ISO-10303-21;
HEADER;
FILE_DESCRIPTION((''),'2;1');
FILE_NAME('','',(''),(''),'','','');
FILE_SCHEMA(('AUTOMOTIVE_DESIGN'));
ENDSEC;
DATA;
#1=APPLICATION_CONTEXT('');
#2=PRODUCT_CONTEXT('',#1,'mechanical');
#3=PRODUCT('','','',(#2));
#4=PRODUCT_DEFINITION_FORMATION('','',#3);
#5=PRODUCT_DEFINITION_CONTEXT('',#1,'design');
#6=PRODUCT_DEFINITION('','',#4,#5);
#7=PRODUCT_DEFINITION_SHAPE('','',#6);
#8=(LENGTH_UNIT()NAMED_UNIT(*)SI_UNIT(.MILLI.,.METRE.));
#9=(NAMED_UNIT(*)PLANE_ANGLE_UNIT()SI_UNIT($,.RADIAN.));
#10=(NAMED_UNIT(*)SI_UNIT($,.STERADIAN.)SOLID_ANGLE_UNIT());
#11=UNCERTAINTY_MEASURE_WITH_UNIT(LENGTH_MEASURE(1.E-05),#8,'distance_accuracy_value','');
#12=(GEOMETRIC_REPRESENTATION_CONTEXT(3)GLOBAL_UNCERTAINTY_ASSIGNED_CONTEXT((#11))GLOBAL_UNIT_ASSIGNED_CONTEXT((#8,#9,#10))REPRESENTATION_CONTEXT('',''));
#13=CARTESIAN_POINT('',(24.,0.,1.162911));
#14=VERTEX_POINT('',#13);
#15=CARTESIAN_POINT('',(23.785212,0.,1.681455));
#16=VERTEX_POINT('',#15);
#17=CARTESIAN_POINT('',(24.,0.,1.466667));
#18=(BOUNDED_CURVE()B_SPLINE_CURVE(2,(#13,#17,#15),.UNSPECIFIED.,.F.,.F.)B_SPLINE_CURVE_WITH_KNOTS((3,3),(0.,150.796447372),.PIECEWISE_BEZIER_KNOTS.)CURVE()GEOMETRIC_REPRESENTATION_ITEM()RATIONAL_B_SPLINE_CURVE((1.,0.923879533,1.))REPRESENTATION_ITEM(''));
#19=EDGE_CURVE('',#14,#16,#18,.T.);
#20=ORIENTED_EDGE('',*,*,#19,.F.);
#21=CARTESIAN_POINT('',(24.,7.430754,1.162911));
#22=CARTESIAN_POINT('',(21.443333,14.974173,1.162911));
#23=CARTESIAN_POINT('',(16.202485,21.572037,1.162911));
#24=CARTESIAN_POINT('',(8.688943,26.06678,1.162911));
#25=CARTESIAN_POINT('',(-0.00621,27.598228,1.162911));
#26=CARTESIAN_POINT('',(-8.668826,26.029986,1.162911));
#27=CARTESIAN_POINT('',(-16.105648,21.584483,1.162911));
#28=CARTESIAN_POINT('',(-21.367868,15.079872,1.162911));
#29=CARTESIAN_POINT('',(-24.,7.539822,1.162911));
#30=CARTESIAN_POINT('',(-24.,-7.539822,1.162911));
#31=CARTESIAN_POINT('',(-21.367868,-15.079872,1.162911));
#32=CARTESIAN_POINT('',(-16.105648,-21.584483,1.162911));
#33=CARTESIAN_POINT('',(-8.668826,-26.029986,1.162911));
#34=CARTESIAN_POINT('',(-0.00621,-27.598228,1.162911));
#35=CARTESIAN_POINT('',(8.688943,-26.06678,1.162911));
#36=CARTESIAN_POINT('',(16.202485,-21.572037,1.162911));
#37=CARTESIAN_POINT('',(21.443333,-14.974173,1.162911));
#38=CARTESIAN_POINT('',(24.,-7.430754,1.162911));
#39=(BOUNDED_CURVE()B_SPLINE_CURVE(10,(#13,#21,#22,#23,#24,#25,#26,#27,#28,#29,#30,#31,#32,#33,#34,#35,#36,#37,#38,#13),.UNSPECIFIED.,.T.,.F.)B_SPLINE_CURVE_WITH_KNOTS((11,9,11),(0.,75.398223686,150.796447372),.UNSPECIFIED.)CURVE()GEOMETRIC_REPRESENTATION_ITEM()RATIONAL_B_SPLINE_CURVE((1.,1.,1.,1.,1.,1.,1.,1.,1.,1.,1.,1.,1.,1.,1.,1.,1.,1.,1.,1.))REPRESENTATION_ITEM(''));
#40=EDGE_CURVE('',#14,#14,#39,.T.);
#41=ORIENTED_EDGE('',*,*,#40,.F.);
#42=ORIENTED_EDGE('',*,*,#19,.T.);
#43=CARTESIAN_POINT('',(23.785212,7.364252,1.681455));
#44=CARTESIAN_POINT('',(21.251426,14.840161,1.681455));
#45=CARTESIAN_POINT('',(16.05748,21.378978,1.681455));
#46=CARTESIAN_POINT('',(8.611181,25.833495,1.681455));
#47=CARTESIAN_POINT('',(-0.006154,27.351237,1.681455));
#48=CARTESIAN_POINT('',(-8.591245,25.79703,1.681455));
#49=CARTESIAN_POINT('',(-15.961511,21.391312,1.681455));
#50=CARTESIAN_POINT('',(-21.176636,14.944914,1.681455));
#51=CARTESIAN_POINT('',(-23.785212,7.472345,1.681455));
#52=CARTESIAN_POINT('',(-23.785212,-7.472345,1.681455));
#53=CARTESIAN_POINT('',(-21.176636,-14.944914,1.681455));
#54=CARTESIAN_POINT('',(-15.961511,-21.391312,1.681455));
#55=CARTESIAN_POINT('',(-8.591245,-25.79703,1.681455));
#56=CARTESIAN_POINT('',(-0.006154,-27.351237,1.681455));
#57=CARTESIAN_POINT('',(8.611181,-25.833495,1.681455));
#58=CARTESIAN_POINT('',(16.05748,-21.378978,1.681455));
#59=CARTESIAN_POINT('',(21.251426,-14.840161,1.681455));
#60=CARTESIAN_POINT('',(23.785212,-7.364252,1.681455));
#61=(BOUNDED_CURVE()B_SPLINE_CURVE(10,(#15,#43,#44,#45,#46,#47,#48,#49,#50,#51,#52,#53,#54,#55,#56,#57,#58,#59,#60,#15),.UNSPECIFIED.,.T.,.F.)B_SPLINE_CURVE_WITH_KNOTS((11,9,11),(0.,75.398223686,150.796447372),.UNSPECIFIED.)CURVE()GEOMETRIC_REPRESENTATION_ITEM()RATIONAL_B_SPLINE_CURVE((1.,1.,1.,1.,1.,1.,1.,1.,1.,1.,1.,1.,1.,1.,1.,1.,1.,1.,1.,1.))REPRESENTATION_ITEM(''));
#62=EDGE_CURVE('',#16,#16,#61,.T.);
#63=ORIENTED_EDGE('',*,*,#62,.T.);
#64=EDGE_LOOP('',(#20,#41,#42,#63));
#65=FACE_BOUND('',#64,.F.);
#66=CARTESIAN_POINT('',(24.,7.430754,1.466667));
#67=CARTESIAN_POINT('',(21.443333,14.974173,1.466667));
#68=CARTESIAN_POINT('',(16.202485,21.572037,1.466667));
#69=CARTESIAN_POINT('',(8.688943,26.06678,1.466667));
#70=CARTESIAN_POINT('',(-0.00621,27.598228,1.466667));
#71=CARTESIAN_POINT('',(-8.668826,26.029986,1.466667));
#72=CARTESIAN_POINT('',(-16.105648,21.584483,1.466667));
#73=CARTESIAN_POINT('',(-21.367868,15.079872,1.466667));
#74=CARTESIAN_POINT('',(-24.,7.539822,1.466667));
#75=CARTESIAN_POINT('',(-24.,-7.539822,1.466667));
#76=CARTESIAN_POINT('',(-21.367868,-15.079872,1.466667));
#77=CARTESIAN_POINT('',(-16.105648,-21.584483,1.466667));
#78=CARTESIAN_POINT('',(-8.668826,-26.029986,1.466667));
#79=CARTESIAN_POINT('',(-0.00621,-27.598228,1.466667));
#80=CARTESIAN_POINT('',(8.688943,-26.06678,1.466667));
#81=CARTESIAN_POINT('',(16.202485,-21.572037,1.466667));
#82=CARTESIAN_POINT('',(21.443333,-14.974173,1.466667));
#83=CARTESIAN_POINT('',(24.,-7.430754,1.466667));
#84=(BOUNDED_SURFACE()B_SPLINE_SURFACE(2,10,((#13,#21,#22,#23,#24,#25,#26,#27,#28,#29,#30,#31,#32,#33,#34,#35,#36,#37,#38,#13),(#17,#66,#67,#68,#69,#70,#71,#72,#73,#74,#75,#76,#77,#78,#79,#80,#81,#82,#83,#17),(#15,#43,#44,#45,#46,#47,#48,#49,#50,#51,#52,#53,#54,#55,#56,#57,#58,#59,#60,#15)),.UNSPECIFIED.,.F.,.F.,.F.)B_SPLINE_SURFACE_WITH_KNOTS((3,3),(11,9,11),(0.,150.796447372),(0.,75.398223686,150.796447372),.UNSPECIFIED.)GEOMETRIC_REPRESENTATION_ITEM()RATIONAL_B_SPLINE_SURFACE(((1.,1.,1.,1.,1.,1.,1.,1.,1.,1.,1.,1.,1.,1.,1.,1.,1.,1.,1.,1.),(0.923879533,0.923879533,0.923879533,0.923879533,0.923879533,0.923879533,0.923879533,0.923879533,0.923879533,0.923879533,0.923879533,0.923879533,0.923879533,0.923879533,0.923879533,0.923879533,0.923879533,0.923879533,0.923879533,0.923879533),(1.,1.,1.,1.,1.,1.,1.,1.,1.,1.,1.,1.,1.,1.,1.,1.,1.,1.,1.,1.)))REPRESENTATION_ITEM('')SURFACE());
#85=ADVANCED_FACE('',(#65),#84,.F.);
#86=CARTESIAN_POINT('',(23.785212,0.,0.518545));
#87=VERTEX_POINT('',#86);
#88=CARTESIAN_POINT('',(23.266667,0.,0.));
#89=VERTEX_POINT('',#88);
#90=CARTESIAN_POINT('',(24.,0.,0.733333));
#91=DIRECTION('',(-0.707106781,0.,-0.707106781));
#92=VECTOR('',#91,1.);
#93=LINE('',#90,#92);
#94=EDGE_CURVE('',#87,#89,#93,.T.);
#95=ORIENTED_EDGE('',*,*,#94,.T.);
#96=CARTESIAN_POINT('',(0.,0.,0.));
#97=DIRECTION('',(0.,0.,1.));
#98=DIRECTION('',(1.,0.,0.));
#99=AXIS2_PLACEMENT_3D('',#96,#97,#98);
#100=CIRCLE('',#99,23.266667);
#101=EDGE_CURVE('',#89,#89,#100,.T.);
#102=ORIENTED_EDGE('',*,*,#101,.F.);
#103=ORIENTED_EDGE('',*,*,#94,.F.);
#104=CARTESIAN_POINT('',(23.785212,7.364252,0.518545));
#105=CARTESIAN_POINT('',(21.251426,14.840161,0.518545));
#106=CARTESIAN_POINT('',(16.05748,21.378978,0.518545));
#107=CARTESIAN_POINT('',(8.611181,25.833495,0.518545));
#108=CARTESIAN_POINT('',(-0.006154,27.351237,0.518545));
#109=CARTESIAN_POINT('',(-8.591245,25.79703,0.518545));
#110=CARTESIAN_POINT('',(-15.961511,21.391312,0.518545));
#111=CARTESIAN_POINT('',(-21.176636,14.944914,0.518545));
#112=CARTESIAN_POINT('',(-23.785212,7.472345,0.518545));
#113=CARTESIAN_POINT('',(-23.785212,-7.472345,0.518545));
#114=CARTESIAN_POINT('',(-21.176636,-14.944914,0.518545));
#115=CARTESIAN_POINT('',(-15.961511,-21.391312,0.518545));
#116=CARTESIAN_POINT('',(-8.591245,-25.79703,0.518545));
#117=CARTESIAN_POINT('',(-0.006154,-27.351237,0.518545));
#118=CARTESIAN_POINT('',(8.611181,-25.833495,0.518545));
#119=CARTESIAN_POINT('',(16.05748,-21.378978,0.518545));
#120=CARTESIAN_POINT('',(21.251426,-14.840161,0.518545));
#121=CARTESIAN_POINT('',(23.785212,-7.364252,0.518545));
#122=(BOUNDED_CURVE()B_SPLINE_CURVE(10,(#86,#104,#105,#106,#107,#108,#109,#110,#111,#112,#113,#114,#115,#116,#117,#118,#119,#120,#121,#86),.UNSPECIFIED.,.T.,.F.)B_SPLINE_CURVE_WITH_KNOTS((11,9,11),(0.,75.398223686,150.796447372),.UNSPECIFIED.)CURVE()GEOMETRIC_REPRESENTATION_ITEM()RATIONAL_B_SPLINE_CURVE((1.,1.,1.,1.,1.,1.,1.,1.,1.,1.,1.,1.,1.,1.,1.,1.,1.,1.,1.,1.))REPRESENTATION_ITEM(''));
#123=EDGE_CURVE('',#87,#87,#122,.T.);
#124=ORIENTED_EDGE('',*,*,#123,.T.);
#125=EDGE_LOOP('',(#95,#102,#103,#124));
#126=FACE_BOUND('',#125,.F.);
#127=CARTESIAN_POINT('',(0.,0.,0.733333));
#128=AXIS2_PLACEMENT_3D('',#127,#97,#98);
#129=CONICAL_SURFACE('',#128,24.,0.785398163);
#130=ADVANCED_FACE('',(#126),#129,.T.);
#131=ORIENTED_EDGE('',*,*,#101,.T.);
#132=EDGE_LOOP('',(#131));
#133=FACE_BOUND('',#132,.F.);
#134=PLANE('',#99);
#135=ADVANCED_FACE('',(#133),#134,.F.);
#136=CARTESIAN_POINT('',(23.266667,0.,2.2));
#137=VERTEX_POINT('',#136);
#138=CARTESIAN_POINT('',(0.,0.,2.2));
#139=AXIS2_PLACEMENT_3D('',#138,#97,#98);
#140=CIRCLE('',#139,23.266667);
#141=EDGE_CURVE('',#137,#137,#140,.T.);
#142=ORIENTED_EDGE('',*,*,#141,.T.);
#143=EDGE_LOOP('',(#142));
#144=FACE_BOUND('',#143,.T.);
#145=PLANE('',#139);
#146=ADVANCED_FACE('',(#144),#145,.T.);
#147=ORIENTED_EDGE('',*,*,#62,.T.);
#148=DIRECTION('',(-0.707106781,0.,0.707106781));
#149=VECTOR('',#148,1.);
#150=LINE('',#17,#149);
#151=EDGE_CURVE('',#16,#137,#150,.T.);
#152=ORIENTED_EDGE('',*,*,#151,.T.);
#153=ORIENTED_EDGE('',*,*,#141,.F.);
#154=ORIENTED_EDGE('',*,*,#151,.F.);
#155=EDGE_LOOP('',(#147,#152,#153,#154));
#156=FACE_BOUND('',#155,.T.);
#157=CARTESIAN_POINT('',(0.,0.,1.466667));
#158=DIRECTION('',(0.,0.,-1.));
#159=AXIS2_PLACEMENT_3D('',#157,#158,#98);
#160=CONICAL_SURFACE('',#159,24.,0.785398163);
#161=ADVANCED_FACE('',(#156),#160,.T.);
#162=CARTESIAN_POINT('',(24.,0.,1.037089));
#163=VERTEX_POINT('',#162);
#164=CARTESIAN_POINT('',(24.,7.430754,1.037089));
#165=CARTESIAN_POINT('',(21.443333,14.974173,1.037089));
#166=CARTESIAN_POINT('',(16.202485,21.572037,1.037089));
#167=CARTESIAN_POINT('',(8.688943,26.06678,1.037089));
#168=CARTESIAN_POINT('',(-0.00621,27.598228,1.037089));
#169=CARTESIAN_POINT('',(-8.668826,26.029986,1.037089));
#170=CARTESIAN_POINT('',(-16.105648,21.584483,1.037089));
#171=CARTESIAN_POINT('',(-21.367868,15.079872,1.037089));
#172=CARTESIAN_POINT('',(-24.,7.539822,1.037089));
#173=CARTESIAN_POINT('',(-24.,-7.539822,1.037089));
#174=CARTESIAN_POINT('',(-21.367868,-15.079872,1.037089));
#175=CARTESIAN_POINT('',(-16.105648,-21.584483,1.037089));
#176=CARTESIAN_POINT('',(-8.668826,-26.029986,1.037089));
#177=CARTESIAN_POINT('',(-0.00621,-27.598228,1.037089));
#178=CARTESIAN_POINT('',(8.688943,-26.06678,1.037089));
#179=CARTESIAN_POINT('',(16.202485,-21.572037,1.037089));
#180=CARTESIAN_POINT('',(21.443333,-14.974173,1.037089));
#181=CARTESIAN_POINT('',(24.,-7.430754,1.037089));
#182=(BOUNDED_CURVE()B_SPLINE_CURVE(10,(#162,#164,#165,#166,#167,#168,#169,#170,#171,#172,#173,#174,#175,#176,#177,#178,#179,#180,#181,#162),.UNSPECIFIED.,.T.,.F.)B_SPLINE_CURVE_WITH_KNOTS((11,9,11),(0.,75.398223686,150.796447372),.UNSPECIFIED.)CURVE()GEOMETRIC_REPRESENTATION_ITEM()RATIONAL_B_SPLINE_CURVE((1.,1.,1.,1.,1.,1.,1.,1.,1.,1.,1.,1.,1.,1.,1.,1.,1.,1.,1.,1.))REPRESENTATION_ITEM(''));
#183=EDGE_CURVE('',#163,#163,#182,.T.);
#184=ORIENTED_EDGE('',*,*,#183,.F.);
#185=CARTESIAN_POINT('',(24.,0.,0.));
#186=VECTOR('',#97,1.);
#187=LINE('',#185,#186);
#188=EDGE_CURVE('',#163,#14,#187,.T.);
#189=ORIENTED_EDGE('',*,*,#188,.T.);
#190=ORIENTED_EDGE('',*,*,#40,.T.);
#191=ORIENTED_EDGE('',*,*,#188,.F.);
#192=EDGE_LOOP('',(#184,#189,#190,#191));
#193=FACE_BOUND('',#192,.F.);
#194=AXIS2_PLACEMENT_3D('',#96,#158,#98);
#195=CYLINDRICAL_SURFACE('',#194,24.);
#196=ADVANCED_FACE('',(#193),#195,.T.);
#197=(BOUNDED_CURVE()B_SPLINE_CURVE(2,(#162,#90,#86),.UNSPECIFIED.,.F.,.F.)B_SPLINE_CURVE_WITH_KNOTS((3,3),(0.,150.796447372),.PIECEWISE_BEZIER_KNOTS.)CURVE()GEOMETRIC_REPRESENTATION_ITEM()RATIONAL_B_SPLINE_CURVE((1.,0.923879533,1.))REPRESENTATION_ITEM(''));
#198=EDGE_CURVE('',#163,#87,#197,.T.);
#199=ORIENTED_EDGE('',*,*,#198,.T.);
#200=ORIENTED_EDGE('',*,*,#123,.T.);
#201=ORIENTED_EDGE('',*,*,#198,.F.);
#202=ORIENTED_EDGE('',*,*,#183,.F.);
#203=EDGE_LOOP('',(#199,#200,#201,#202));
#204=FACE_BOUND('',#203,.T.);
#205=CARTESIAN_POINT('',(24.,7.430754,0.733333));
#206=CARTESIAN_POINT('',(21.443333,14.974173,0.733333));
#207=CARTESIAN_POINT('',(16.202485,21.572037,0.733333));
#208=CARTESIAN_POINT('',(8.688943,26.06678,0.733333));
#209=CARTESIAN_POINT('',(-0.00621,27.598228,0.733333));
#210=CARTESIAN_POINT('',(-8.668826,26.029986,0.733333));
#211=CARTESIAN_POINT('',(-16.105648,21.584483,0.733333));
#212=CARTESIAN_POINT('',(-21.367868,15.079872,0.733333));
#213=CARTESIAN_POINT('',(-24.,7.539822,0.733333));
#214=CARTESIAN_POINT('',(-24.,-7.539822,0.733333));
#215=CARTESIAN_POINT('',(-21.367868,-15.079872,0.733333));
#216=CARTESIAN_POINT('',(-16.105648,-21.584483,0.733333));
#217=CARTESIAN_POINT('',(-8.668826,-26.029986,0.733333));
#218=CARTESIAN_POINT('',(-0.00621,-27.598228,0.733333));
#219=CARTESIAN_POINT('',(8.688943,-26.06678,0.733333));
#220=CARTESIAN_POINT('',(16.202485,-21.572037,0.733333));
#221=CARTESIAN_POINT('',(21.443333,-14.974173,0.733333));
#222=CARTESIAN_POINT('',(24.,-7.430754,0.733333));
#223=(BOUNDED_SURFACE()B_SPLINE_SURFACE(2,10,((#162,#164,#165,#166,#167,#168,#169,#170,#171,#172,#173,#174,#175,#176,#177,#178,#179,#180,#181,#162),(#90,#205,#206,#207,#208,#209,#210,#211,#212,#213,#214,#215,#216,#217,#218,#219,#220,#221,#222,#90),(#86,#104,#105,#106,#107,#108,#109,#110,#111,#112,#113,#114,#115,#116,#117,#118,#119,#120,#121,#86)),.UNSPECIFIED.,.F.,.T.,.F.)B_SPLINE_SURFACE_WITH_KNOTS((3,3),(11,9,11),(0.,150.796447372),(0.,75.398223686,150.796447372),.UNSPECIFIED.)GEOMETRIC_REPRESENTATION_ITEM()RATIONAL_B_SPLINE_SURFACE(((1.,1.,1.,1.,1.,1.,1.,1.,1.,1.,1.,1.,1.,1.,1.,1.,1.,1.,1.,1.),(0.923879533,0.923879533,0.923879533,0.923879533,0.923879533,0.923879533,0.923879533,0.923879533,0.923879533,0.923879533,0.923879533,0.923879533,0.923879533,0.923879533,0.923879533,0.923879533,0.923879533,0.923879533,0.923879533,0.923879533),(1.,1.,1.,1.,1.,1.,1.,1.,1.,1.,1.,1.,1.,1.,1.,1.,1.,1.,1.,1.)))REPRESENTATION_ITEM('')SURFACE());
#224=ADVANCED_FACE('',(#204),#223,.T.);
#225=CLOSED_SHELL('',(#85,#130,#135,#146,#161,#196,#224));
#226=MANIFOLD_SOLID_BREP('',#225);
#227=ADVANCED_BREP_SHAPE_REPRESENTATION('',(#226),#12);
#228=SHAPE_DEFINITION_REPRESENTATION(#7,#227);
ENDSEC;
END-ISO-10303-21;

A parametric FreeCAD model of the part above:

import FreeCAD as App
import Part
import Sketcher


def edges_at(feature, points):
    """Names of the edges that pass closest to the given points."""
    edges = feature.Shape.Edges
    near = lambda p: min(range(len(edges)), key=lambda i: edges[i].distToShape(Part.Vertex(*p))[0])
    return sorted({f"Edge{near(p) + 1}" for p in points})

doc = App.newDocument("Part")
params = doc.addObject("Spreadsheet::Sheet", "Params")
for row, (alias, value) in enumerate([
    ("sketch1_diameter", "48 mm"),
    ("pad1_length", "2.2 mm"),
    ("chamfer_size", "0.733333 mm"),
    ("fillet_radius", "0.733333 mm"),
], start=1):
    params.set(f"A{row}", alias)
    params.set(f"B{row}", "=" + value)
    params.setAlias(f"B{row}", alias)

body = doc.addObject("PartDesign::Body", "Body")

# Sketch on XY plane
sketch1 = body.newObject("Sketcher::SketchObject", "Sketch")
sketch1.AttachmentSupport = (doc.getObject("XY_Plane"), [""])
sketch1.MapMode = "FlatFace"
sketch1.addGeometry(Part.Circle(App.Vector(0, 0, 0), App.Vector(0, 0, 1), 24), False)
sketch1.addConstraint([
    Sketcher.Constraint("Coincident", 0, 3, -1, 1),
    Sketcher.Constraint("Diameter", 0, 48.0),
])
sketch1.setExpression("Constraints[1]", "Params.sketch1_diameter")
pad1 = body.newObject("PartDesign::Pad", "Pad")
pad1.Profile = sketch1
pad1.setExpression("Length", "Params.pad1_length")
doc.recompute()

chamfer = body.newObject("PartDesign::Chamfer", "Chamfer")
chamfer.Base = (pad1, ["Edge1"])
chamfer.UseAllEdges = True
chamfer.setExpression("Size", "Params.chamfer_size")
doc.recompute()

fillet = body.newObject("PartDesign::Fillet", "Fillet")
fillet.Base = (chamfer, edges_at(chamfer, [(24, 0, 1.1), (-24, 0, 0.733), (-24, 0, 1.467)]))
fillet.setExpression("Radius", "Params.fillet_radius")

doc.recompute()
